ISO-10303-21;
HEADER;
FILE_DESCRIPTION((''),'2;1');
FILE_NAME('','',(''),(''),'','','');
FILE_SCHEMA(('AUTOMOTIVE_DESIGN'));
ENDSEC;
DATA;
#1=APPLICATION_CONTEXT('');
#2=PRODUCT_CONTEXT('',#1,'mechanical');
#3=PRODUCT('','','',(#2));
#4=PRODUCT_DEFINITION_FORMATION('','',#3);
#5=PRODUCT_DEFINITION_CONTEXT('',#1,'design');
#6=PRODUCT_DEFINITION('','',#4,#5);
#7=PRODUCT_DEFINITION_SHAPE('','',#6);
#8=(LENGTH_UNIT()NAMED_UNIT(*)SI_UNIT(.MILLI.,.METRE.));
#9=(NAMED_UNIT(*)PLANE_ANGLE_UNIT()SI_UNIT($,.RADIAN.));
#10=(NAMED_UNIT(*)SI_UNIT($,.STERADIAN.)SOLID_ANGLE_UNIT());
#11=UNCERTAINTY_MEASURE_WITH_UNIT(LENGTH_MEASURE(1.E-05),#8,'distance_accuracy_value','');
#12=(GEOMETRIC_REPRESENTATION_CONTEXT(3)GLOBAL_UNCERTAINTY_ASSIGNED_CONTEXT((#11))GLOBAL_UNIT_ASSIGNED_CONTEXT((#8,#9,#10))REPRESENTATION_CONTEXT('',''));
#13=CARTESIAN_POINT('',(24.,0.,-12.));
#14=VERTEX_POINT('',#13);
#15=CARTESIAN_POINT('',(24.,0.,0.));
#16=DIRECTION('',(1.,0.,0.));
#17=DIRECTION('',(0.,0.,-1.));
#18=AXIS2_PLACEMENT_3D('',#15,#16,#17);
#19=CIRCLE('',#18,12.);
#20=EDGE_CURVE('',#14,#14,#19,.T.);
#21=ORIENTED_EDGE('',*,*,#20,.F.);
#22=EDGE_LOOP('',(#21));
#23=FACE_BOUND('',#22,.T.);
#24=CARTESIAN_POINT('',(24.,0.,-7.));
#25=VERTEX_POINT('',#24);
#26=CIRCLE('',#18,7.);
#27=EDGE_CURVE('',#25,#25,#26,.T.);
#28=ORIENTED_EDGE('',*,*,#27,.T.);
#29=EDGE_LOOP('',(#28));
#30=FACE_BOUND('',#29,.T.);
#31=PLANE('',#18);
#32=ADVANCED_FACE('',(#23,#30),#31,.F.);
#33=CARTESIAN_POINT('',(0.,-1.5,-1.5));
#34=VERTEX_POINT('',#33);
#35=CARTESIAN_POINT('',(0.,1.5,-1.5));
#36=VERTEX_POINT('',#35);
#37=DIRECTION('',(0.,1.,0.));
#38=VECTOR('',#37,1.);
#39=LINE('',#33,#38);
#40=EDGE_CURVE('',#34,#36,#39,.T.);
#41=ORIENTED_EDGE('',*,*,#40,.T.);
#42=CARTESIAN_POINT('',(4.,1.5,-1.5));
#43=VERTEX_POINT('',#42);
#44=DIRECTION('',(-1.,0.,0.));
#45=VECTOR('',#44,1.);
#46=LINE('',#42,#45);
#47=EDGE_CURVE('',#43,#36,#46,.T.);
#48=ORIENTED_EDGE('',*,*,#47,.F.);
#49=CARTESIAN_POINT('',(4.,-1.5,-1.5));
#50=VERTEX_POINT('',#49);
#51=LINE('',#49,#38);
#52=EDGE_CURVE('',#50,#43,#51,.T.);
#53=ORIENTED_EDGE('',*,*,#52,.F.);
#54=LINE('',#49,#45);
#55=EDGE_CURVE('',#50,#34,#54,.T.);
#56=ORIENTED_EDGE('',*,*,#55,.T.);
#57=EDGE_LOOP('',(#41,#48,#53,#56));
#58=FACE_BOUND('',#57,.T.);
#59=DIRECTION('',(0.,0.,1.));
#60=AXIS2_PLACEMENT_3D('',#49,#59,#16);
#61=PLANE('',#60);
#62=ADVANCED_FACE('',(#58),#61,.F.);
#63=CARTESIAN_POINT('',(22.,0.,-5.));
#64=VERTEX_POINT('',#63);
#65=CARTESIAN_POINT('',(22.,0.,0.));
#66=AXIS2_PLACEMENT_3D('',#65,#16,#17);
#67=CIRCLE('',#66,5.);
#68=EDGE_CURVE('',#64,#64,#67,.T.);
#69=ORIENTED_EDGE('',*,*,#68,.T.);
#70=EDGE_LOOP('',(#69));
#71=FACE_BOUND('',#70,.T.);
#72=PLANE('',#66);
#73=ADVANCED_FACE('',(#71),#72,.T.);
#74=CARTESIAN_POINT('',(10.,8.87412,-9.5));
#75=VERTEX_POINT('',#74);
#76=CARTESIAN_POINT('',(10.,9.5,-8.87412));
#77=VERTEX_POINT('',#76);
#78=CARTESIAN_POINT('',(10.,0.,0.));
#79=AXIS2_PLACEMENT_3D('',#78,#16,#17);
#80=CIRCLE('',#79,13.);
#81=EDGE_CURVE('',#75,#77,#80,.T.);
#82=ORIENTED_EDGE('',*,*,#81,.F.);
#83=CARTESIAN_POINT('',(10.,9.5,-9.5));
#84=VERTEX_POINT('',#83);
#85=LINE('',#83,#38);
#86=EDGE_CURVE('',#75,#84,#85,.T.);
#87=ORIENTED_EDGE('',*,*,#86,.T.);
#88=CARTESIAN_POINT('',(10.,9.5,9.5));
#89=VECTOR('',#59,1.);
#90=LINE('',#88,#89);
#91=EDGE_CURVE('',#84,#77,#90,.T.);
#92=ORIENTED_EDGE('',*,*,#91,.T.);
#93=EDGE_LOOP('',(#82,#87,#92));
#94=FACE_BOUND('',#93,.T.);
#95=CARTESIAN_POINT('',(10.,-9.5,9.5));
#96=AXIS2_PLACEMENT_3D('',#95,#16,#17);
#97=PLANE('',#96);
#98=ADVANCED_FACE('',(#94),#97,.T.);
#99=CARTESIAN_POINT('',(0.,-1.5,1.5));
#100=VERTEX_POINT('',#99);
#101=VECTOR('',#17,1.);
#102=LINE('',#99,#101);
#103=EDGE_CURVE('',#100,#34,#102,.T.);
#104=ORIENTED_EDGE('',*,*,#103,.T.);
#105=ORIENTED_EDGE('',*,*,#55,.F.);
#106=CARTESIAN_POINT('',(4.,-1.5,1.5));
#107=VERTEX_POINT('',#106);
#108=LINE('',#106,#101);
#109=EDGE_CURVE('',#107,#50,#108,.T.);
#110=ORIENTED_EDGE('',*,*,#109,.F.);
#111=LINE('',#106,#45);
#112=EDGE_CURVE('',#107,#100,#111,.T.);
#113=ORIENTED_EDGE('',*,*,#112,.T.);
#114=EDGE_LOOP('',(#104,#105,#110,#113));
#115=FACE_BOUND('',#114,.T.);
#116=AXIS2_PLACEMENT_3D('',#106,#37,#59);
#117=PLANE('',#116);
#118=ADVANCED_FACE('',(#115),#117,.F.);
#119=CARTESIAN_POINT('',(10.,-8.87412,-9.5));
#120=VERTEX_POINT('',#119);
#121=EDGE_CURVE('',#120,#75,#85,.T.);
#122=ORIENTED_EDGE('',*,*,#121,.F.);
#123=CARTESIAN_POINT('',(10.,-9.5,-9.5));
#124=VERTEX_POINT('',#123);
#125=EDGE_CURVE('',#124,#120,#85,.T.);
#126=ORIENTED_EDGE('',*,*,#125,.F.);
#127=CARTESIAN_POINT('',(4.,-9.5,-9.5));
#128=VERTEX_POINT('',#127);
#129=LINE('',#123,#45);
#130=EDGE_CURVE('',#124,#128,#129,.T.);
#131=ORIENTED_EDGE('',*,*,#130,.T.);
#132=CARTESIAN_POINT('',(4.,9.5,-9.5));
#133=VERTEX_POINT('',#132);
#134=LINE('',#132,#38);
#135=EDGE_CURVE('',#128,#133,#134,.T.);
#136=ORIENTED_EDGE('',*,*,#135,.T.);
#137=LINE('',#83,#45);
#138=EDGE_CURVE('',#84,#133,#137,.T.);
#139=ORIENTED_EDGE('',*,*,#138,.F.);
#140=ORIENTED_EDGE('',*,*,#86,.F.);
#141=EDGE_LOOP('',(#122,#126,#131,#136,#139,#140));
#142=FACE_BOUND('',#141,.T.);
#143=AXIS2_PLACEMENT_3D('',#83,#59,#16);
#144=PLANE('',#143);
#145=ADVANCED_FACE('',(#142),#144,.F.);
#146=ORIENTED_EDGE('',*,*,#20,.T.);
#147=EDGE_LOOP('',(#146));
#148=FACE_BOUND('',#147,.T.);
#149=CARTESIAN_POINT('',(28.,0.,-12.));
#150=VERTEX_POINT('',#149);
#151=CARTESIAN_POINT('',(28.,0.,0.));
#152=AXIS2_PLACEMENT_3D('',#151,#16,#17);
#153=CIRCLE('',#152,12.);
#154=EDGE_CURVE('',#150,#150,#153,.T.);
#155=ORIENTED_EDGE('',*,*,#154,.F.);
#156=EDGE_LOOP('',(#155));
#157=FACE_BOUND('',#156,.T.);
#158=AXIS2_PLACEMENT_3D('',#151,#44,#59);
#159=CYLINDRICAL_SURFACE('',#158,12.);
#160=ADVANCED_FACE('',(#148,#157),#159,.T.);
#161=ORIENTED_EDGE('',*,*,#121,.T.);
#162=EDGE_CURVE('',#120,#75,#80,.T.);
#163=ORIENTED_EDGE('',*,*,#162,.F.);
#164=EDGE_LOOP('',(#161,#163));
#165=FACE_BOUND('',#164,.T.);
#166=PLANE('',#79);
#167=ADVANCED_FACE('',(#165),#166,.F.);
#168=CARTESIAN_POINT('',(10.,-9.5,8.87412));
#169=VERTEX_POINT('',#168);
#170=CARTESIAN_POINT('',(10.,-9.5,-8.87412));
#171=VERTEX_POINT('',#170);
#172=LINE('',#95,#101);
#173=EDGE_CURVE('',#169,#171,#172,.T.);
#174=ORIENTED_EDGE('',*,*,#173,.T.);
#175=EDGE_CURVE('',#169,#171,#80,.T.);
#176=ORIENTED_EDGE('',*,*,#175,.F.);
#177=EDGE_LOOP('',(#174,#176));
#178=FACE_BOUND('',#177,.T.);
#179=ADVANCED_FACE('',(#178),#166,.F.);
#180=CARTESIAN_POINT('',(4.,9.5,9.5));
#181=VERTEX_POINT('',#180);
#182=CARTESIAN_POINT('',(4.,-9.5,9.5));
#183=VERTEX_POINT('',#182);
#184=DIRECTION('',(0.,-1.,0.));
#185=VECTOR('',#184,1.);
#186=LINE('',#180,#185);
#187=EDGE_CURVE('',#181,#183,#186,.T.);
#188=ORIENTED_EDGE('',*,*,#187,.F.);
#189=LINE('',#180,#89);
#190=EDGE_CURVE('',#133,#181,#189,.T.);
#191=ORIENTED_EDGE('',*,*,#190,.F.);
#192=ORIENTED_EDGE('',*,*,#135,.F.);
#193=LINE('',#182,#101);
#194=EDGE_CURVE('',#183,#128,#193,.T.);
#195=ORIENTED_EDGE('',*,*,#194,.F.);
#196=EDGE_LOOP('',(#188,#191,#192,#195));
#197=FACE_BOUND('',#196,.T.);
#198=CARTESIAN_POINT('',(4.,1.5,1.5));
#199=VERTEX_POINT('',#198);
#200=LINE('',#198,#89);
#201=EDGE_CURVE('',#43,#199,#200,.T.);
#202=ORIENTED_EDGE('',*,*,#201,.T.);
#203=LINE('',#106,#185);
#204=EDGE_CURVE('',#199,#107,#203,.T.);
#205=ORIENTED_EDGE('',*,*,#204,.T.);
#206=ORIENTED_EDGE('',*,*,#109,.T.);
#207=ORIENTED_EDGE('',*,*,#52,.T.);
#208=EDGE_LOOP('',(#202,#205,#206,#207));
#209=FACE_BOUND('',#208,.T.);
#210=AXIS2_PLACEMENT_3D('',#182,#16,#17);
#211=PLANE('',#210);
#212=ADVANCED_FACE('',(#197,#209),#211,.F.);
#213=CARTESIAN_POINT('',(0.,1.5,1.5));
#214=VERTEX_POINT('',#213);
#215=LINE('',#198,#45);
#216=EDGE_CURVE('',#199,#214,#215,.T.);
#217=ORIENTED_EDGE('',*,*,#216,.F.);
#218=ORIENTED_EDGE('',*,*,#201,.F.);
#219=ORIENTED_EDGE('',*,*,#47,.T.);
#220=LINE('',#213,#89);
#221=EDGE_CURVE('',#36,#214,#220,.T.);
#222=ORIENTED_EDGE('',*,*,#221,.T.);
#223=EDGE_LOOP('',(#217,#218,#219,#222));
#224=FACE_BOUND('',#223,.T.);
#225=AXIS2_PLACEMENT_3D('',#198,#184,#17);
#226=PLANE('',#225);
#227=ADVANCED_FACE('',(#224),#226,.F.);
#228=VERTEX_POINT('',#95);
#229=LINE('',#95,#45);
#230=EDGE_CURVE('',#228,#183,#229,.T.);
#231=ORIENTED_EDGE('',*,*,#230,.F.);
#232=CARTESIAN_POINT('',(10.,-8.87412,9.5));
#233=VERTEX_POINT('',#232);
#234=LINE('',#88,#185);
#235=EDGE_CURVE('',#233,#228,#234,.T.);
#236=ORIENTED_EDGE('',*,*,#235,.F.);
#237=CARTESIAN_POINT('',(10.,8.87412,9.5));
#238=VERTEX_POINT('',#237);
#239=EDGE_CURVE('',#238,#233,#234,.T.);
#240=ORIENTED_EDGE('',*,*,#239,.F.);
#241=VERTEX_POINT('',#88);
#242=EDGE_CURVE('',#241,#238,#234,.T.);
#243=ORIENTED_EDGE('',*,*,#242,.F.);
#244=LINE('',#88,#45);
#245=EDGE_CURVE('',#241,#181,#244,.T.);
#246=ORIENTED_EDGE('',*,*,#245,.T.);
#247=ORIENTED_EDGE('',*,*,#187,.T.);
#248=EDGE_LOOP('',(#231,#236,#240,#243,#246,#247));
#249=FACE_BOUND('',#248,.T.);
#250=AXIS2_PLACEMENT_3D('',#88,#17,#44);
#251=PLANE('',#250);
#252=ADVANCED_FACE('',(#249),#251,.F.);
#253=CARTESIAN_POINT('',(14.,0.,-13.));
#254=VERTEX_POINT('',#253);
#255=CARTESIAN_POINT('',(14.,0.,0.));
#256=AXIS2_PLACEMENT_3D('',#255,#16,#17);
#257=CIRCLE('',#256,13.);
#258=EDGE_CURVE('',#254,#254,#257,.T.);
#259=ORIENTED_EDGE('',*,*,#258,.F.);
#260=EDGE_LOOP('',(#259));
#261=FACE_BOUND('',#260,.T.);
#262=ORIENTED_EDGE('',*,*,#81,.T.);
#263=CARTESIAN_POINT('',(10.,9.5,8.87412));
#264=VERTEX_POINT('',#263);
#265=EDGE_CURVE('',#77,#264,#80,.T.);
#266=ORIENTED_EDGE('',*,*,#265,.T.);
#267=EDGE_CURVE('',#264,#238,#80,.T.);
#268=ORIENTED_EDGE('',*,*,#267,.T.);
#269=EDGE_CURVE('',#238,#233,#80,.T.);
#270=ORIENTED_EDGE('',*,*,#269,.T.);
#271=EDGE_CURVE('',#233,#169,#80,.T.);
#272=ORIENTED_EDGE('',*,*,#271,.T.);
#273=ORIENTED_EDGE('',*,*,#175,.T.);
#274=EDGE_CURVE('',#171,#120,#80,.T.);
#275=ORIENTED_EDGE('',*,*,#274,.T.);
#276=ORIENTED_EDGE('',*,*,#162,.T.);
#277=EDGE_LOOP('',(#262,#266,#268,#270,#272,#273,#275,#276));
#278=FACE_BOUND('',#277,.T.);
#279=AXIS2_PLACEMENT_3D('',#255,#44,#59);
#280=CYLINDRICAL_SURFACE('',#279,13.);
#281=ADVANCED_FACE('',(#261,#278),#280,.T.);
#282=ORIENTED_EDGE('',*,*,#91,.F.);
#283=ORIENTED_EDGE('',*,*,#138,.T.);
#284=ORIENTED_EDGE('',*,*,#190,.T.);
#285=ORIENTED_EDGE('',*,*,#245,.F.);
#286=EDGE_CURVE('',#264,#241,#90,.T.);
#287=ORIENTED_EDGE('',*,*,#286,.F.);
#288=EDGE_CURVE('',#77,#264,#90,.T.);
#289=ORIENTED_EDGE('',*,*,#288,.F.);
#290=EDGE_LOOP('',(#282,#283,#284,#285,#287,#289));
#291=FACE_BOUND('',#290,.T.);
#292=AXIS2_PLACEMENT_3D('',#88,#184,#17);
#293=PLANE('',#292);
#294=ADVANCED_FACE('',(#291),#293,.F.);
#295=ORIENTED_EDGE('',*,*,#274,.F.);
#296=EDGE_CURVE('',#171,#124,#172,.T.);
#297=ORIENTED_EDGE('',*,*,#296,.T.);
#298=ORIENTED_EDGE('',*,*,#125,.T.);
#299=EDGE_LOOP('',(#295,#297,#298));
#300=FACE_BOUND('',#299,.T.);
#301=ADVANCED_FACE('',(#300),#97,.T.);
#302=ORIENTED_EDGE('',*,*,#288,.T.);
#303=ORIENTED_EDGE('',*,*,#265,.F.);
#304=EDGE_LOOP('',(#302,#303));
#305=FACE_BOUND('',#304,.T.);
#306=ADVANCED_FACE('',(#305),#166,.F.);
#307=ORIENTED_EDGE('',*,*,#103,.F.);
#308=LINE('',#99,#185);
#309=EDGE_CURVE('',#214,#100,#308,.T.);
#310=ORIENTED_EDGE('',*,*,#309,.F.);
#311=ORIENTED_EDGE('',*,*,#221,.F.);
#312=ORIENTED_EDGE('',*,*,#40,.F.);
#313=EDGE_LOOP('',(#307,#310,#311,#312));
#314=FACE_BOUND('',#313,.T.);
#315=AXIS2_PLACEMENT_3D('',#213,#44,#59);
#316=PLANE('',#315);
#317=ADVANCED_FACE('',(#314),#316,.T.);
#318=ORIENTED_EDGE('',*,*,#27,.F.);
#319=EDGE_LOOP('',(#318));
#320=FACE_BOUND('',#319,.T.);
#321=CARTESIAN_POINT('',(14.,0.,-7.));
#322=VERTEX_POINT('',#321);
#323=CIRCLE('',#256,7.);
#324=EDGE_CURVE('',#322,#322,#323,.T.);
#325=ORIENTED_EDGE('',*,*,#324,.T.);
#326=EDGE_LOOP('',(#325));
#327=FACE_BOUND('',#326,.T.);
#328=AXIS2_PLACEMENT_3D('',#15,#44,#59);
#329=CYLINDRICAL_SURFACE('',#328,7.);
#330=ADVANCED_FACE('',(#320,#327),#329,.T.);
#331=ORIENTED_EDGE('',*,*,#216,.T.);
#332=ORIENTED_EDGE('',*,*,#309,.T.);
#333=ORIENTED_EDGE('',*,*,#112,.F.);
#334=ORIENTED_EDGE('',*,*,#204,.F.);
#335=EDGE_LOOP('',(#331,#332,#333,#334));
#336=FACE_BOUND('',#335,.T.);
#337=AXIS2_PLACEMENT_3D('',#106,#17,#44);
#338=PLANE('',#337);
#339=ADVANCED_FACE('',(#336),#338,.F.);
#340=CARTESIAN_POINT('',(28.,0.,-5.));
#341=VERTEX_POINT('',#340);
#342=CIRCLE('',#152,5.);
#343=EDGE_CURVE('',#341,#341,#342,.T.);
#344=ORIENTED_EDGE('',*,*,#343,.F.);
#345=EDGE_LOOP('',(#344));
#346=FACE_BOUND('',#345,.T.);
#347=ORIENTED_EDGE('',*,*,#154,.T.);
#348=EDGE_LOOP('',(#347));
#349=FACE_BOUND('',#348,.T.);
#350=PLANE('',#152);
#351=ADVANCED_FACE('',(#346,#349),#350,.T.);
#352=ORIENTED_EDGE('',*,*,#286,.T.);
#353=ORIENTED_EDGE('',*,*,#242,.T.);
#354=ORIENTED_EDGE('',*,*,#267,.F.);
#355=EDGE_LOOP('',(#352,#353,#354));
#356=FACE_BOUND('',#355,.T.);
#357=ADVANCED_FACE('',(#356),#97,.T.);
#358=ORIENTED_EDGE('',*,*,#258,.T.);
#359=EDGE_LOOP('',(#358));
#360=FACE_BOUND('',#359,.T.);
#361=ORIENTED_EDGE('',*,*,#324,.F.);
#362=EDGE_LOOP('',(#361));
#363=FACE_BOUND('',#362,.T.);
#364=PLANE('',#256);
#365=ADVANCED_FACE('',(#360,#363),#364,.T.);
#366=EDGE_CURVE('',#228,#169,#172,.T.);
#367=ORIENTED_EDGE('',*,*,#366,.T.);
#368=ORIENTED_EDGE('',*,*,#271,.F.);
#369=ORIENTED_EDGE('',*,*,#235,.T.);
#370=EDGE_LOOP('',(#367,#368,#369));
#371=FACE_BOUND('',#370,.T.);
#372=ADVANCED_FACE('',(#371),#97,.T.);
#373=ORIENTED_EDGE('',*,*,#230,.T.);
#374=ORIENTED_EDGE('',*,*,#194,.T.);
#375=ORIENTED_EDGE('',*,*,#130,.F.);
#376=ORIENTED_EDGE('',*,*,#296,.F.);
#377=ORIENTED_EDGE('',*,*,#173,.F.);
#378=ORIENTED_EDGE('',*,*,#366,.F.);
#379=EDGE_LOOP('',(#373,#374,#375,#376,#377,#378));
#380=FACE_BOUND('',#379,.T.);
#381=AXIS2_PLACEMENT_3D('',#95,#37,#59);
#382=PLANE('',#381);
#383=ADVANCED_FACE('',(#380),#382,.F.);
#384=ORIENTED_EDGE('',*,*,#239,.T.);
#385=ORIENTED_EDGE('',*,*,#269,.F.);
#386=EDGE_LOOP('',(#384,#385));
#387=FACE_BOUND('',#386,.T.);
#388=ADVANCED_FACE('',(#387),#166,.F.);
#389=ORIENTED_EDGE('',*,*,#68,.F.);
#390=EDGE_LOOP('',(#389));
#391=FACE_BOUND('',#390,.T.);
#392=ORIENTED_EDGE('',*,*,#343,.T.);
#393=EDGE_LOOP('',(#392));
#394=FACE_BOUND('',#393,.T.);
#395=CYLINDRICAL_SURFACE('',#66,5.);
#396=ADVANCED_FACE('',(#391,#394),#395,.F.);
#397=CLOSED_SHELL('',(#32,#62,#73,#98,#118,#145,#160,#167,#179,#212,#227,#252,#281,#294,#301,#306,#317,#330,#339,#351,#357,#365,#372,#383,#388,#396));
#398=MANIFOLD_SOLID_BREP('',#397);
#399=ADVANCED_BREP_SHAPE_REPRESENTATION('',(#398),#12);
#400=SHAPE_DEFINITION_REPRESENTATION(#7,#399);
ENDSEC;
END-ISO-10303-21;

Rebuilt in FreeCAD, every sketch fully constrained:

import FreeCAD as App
import Part
import Sketcher
Q = App.Units.Quantity


def add_polygon(sketch, points):
    """Adds a closed chain of lines whose ends are joined by coincident constraints."""
    first, n = sketch.GeometryCount, len(points)
    for a, b in zip(points, points[1:] + points[:1]):
        sketch.addGeometry(Part.LineSegment(App.Vector(*a, 0), App.Vector(*b, 0)), False)
    for i in range(n):
        sketch.addConstraint(Sketcher.Constraint("Coincident", first + i, 2, first + (i + 1) % n, 1))

doc = App.newDocument("Part")
body = doc.addObject("PartDesign::Body", "Body")

sketch1 = body.newObject("Sketcher::SketchObject", "Sketch")
sketch1.AttachmentSupport = (doc.getObject("YZ_Plane"), [""])
sketch1.MapMode = "FlatFace"
add_polygon(sketch1, [(1.5, 1.5), (-1.5, 1.5), (-1.5, -1.5), (1.5, -1.5)])
sketch1.addConstraint([
    Sketcher.Constraint("Horizontal", 0),
    Sketcher.Constraint("Vertical", 1),
    Sketcher.Constraint("Horizontal", 2),
    Sketcher.Constraint("Vertical", 3),
    Sketcher.Constraint("Symmetric", 0, 2, 2, 2, -1, 1),
    Sketcher.Constraint("Equal", 2, 1),
    Sketcher.Constraint("DistanceX", 0, 2, 0, 1, Q("3 mm")),
])
pad1 = body.newObject("PartDesign::Pad", "Pad")
pad1.Profile = sketch1
pad1.Length = 4

sketch2 = body.newObject("Sketcher::SketchObject", "Sketch001")
sketch2.AttachmentSupport = (doc.getObject("YZ_Plane"), [""])
sketch2.MapMode = "FlatFace"
sketch2.AttachmentOffset = App.Placement(App.Vector(0, 0, 4), App.Rotation())
add_polygon(sketch2, [(9.5, 9.5), (-9.5, 9.5), (-9.5, -9.5), (9.5, -9.5)])
sketch2.addConstraint([
    Sketcher.Constraint("Horizontal", 0),
    Sketcher.Constraint("Vertical", 1),
    Sketcher.Constraint("Horizontal", 2),
    Sketcher.Constraint("Vertical", 3),
    Sketcher.Constraint("Symmetric", 0, 2, 2, 2, -1, 1),
    Sketcher.Constraint("Equal", 2, 1),
    Sketcher.Constraint("DistanceX", 0, 2, 0, 1, Q("19 mm")),
])
pad2 = body.newObject("PartDesign::Pad", "Pad001")
pad2.Profile = sketch2
pad2.Length = 6

sketch3 = body.newObject("Sketcher::SketchObject", "Sketch002")
sketch3.AttachmentSupport = (doc.getObject("YZ_Plane"), [""])
sketch3.MapMode = "FlatFace"
sketch3.AttachmentOffset = App.Placement(App.Vector(0, 0, 10), App.Rotation())
sketch3.addGeometry(Part.Circle(App.Vector(0, 0, 0), App.Vector(0, 0, 1), 13), False)
sketch3.addConstraint([
    Sketcher.Constraint("Coincident", 0, 3, -1, 1),
    Sketcher.Constraint("Diameter", 0, Q("26 mm")),
])
pad3 = body.newObject("PartDesign::Pad", "Pad002")
pad3.Profile = sketch3
pad3.Length = 4

sketch4 = body.newObject("Sketcher::SketchObject", "Sketch003")
sketch4.AttachmentSupport = (doc.getObject("YZ_Plane"), [""])
sketch4.MapMode = "FlatFace"
sketch4.AttachmentOffset = App.Placement(App.Vector(0, 0, 14), App.Rotation())
sketch4.addGeometry(Part.Circle(App.Vector(0, 0, 0), App.Vector(0, 0, 1), 7), False)
sketch4.addConstraint([
    Sketcher.Constraint("Coincident", 0, 3, -1, 1),
    Sketcher.Constraint("Diameter", 0, Q("14 mm")),
])
pad4 = body.newObject("PartDesign::Pad", "Pad003")
pad4.Profile = sketch4
pad4.Length = 10

sketch5 = body.newObject("Sketcher::SketchObject", "Sketch004")
sketch5.AttachmentSupport = (doc.getObject("YZ_Plane"), [""])
sketch5.MapMode = "FlatFace"
sketch5.AttachmentOffset = App.Placement(App.Vector(0, 0, 24), App.Rotation())
sketch5.addGeometry(Part.Circle(App.Vector(0, 0, 0), App.Vector(0, 0, 1), 12), False)
sketch5.addConstraint([
    Sketcher.Constraint("Coincident", 0, 3, -1, 1),
    Sketcher.Constraint("Diameter", 0, Q("24 mm")),
])
pad5 = body.newObject("PartDesign::Pad", "Pad004")
pad5.Profile = sketch5
pad5.Length = 4

sketch6 = body.newObject("Sketcher::SketchObject", "Sketch005")
sketch6.AttachmentSupport = (doc.getObject("YZ_Plane"), [""])
sketch6.MapMode = "FlatFace"
sketch6.AttachmentOffset = App.Placement(App.Vector(0, 0, 28), App.Rotation())
sketch6.addGeometry(Part.Circle(App.Vector(0, 0, 0), App.Vector(0, 0, 1), 5), False)
sketch6.addConstraint([
    Sketcher.Constraint("Coincident", 0, 3, -1, 1),
    Sketcher.Constraint("Diameter", 0, Q("10 mm")),
])
pocket1 = body.newObject("PartDesign::Pocket", "Pocket")
pocket1.Profile = sketch6
pocket1.Length = 6

doc.recompute()
